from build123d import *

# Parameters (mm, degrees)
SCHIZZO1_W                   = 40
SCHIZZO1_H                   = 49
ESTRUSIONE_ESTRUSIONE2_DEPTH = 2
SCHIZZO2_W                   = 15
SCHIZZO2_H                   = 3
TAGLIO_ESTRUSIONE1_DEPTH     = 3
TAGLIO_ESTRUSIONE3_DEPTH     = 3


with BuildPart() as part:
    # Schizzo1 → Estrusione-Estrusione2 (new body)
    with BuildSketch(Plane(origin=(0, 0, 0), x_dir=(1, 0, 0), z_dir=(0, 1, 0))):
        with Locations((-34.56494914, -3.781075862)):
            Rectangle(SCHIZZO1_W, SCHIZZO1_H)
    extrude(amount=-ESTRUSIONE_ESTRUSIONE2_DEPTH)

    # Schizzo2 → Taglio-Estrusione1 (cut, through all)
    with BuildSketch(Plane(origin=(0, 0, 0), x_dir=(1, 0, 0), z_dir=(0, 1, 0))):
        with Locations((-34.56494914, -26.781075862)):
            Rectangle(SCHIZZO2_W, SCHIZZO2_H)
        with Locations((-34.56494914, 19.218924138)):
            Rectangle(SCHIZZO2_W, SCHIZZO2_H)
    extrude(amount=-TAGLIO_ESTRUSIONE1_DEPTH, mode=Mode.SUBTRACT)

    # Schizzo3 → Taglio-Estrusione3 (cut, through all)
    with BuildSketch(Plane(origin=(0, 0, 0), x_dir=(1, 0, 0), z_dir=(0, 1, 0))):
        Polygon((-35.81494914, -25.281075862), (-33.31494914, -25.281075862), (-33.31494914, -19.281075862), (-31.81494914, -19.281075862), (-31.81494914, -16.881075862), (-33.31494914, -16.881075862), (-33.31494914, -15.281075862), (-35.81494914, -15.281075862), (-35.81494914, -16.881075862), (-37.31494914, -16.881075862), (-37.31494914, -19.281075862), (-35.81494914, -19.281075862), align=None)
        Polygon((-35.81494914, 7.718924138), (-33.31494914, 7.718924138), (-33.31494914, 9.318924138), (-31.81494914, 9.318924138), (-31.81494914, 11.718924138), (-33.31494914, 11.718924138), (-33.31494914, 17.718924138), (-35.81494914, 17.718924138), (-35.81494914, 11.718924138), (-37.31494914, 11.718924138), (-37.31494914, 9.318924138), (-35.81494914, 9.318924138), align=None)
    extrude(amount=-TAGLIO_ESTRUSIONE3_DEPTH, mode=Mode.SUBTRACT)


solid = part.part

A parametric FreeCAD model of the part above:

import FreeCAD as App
import Part
import Sketcher
Q = App.Units.Quantity


def add_polygon(sketch, points):
    """Adds a closed chain of lines whose ends are joined by coincident constraints."""
    first, n = sketch.GeometryCount, len(points)
    for a, b in zip(points, points[1:] + points[:1]):
        sketch.addGeometry(Part.LineSegment(App.Vector(*a, 0), App.Vector(*b, 0)), False)
    for i in range(n):
        sketch.addConstraint(Sketcher.Constraint("Coincident", first + i, 2, first + (i + 1) % n, 1))

doc = App.newDocument("Part")
body = doc.addObject("PartDesign::Body", "Body")

sketch1 = doc.addObject("Sketcher::SketchObject", "Sketch")
body.addObject(sketch1)
sketch1.AttachmentSupport = (doc.XZ_Plane, [""])
sketch1.MapMode = "FlatFace"
add_polygon(sketch1, [(-54.564949, -20.718924), (-54.564949, 28.281076), (-14.564949, 28.281076), (-14.564949, -20.718924)])
sketch1.addConstraint([
    Sketcher.Constraint("Vertical", 0),
    Sketcher.Constraint("Horizontal", 1),
    Sketcher.Constraint("Vertical", 2),
    Sketcher.Constraint("Horizontal", 3),
    Sketcher.Constraint("DistanceX", 1, 1, 1, 2, Q("40 mm")),
    Sketcher.Constraint("DistanceY", 0, 1, 0, 2, Q("49 mm")),
    Sketcher.Constraint("DistanceX", 0, 2, -1, 1, Q("54.564949 mm")),
    Sketcher.Constraint("DistanceY", -1, 1, 0, 2, Q("28.281076 mm")),
])
pad1 = doc.addObject("PartDesign::Pad", "Pad")
body.addObject(pad1)
pad1.Profile = sketch1
pad1.Length = 2

sketch2 = doc.addObject("Sketcher::SketchObject", "Sketch001")
body.addObject(sketch2)
sketch2.AttachmentSupport = (doc.XZ_Plane, [""])
sketch2.MapMode = "FlatFace"
add_polygon(sketch2, [(-42.064949, 25.281076), (-42.064949, 28.281076), (-27.064949, 28.281076), (-27.064949, 25.281076)])
add_polygon(sketch2, [(-42.064949, -20.718924), (-42.064949, -17.718924), (-27.064949, -17.718924), (-27.064949, -20.718924)])
sketch2.addConstraint([
    Sketcher.Constraint("Vertical", 0),
    Sketcher.Constraint("Horizontal", 1),
    Sketcher.Constraint("Vertical", 2),
    Sketcher.Constraint("Horizontal", 3),
    Sketcher.Constraint("Vertical", 4),
    Sketcher.Constraint("Horizontal", 5),
    Sketcher.Constraint("Vertical", 6),
    Sketcher.Constraint("Horizontal", 7),
    Sketcher.Constraint("Vertical", 3, 2, 4, 2),
    Sketcher.Constraint("Vertical", 2, 2, 5, 2),
    Sketcher.Constraint("Equal", 2, 4),
    Sketcher.Constraint("DistanceX", 1, 1, 1, 2, Q("15 mm")),
    Sketcher.Constraint("DistanceY", 0, 1, 0, 2, Q("3 mm")),
    Sketcher.Constraint("DistanceY", 4, 2, 3, 2, Q("43 mm")),
    Sketcher.Constraint("DistanceX", 0, 2, -1, 1, Q("42.064949 mm")),
    Sketcher.Constraint("DistanceY", -1, 1, 0, 2, Q("28.281076 mm")),
])
pocket1 = doc.addObject("PartDesign::Pocket", "Pocket")
body.addObject(pocket1)
pocket1.Profile = sketch2
pocket1.Type = "ThroughAll"
pocket1.Reversed = True

sketch3 = doc.addObject("Sketcher::SketchObject", "Sketch002")
body.addObject(sketch3)
sketch3.AttachmentSupport = (doc.XZ_Plane, [""])
sketch3.MapMode = "FlatFace"
add_polygon(sketch3, [(-35.814949, 25.281076), (-33.314949, 25.281076), (-33.314949, 19.281076), (-31.814949, 19.281076), (-31.814949, 16.881076), (-33.314949, 16.881076), (-33.314949, 15.281076), (-35.814949, 15.281076), (-35.814949, 16.881076), (-37.314949, 16.881076), (-37.314949, 19.281076), (-35.814949, 19.281076)])
add_polygon(sketch3, [(-35.814949, -7.718924), (-33.314949, -7.718924), (-33.314949, -9.318924), (-31.814949, -9.318924), (-31.814949, -11.718924), (-33.314949, -11.718924), (-33.314949, -17.718924), (-35.814949, -17.718924), (-35.814949, -11.718924), (-37.314949, -11.718924), (-37.314949, -9.318924), (-35.814949, -9.318924)])
sketch3.addConstraint([
    Sketcher.Constraint("Horizontal", 0),
    Sketcher.Constraint("Vertical", 1),
    Sketcher.Constraint("Horizontal", 2),
    Sketcher.Constraint("Vertical", 3),
    Sketcher.Constraint("Horizontal", 4),
    Sketcher.Constraint("Vertical", 5),
    Sketcher.Constraint("Horizontal", 6),
    Sketcher.Constraint("Vertical", 7),
    Sketcher.Constraint("Horizontal", 8),
    Sketcher.Constraint("Vertical", 9),
    Sketcher.Constraint("Horizontal", 10),
    Sketcher.Constraint("Vertical", 11),
    Sketcher.Constraint("Horizontal", 12),
    Sketcher.Constraint("Vertical", 13),
    Sketcher.Constraint("Horizontal", 14),
    Sketcher.Constraint("Vertical", 15),
    Sketcher.Constraint("Horizontal", 16),
    Sketcher.Constraint("Vertical", 17),
    Sketcher.Constraint("Horizontal", 18),
    Sketcher.Constraint("Vertical", 19),
    Sketcher.Constraint("Horizontal", 20),
    Sketcher.Constraint("Vertical", 21),
    Sketcher.Constraint("Horizontal", 22),
    Sketcher.Constraint("Vertical", 23),
    Sketcher.Constraint("Horizontal", 4, 2, 7, 2),
    Sketcher.Constraint("Horizontal", 2, 2, 9, 2),
    Sketcher.Constraint("Horizontal", 16, 2, 19, 2),
    Sketcher.Constraint("Horizontal", 14, 2, 21, 2),
    Sketcher.Constraint("Vertical", 1, 2, 4, 2),
    Sketcher.Constraint("Vertical", 7, 2, 10, 2),
    Sketcher.Constraint("Vertical", 5, 2, 12, 2),
    Sketcher.Constraint("Vertical", 3, 2, 14, 2),
    Sketcher.Constraint("Vertical", 13, 2, 16, 2),
    Sketcher.Constraint("Vertical", 11, 2, 18, 2),
    Sketcher.Constraint("Vertical", 9, 2, 20, 2),
    Sketcher.Constraint("Vertical", 19, 2, 22, 2),
    Sketcher.Constraint("Equal", 4, 8),
    Sketcher.Constraint("Equal", 7, 13),
    Sketcher.Constraint("Equal", 9, 15),
    Sketcher.Constraint("Equal", 11, 17),
    Sketcher.Constraint("DistanceY", 1, 2, 1, 1, Q("6 mm")),
    Sketcher.Constraint("DistanceX", 0, 1, 0, 2, Q("2.5 mm")),
    Sketcher.Constraint("DistanceX", 2, 1, 2, 2, Q("1.5 mm")),
    Sketcher.Constraint("DistanceY", 3, 2, 3, 1, Q("2.4 mm")),
    Sketcher.Constraint("DistanceY", 5, 2, 5, 1, Q("1.6 mm")),
    Sketcher.Constraint("DistanceY", 12, 2, 5, 2, Q("23 mm")),
    Sketcher.Constraint("DistanceX", 0, 2, -1, 1, Q("33.314949 mm")),
    Sketcher.Constraint("DistanceY", -1, 1, 0, 2, Q("25.281076 mm")),
])
pocket2 = doc.addObject("PartDesign::Pocket", "Pocket001")
body.addObject(pocket2)
pocket2.Profile = sketch3
pocket2.Type = "ThroughAll"
pocket2.Reversed = True

doc.recompute()
